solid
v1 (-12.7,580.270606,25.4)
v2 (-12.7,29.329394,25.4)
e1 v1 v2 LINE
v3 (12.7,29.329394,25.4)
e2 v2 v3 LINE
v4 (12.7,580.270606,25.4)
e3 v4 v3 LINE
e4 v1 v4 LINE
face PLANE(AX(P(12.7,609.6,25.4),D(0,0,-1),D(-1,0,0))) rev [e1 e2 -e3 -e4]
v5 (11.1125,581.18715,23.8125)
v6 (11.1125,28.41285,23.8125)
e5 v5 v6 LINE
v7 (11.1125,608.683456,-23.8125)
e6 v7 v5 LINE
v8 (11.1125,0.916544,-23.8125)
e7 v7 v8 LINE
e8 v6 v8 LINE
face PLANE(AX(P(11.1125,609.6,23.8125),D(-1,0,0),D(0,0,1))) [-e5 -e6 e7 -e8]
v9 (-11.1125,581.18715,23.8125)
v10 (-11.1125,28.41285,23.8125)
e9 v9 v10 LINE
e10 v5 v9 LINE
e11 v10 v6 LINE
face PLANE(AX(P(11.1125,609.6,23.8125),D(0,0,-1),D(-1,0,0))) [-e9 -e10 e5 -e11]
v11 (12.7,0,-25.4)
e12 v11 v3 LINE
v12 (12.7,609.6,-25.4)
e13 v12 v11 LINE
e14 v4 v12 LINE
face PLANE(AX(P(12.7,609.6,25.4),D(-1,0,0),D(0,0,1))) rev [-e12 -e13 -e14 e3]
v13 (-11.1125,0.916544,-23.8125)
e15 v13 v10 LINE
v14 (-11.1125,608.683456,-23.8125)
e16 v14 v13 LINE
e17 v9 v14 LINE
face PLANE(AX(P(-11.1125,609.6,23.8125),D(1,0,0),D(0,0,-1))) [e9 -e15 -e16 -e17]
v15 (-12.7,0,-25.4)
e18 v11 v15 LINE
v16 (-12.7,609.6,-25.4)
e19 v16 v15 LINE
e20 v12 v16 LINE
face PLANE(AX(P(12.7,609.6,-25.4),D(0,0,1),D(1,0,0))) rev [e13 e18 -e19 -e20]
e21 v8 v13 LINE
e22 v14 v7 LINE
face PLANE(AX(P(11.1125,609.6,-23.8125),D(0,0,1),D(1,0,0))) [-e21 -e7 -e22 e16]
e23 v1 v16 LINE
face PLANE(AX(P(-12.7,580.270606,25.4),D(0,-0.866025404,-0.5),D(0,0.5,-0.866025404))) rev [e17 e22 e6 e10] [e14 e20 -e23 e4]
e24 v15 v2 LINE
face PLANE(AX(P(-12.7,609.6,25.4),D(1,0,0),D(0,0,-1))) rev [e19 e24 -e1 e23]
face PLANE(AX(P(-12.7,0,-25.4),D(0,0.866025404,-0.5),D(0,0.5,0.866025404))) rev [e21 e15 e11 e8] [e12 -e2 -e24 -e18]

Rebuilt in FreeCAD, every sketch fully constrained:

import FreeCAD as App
import Part
import Sketcher

V = App.Vector
Q = App.Units.Quantity

doc = App.newDocument("Part")
body = doc.addObject("PartDesign::Body", "Body")

# Sketch on XZ plane
sketch1 = body.newObject("Sketcher::SketchObject", "Sketch")
sketch1.AttachmentSupport = (doc.getObject("XZ_Plane"), [""])
sketch1.MapMode = "FlatFace"
sketch1.addGeometry([
    Part.LineSegment(V(-13, -25, 0), V(-13, 25, 0)),  # 0
    Part.LineSegment(V(-13, 25, 0), V(13, 25, 0)),  # 1
    Part.LineSegment(V(13, 25, 0), V(13, -25, 0)),  # 2
    Part.LineSegment(V(13, -25, 0), V(-13, -25, 0)),  # 3
    Part.LineSegment(V(11, 24, 0), V(-11, 24, 0)),  # 4
    Part.LineSegment(V(-11, 24, 0), V(-11, -24, 0)),  # 5
    Part.LineSegment(V(-11, -24, 0), V(11, -24, 0)),  # 6
    Part.LineSegment(V(11, -24, 0), V(11, 24, 0)),  # 7
], False)
sketch1.addConstraint([
    Sketcher.Constraint("Coincident", 0, 2, 1, 1),
    Sketcher.Constraint("Coincident", 1, 2, 2, 1),
    Sketcher.Constraint("Coincident", 2, 2, 3, 1),
    Sketcher.Constraint("Coincident", 3, 2, 0, 1),
    Sketcher.Constraint("Coincident", 4, 2, 5, 1),
    Sketcher.Constraint("Coincident", 5, 2, 6, 1),
    Sketcher.Constraint("Coincident", 6, 2, 7, 1),
    Sketcher.Constraint("Coincident", 7, 2, 4, 1),
    Sketcher.Constraint("Vertical", 0),
    Sketcher.Constraint("Horizontal", 1),
    Sketcher.Constraint("Vertical", 2),
    Sketcher.Constraint("Horizontal", 3),
    Sketcher.Constraint("Horizontal", 4),
    Sketcher.Constraint("Vertical", 5),
    Sketcher.Constraint("Horizontal", 6),
    Sketcher.Constraint("Vertical", 7),
    Sketcher.Constraint("Symmetric", 0, 2, 2, 2, -1, 1),
    Sketcher.Constraint("Symmetric", 4, 2, 6, 2, -1, 1),
    Sketcher.Constraint("DistanceX", 1, 1, 1, 2, Q("1 in")),
    Sketcher.Constraint("DistanceY", 0, 1, 0, 2, Q("2 in")),
    Sketcher.Constraint("DistanceX", 4, 2, 4, 1, Q("0.875 in")),
    Sketcher.Constraint("DistanceY", 5, 2, 5, 1, Q("1.875 in")),
])
pad1 = body.newObject("PartDesign::Pad", "Pad")
pad1.Profile = sketch1
pad1.Length = Q("24 in")
pad1.Reversed = True

# Sketch on YZ plane
sketch2 = body.newObject("Sketcher::SketchObject", "Sketch001")
sketch2.AttachmentSupport = (doc.getObject("YZ_Plane"), [""])
sketch2.MapMode = "FlatFace"
sketch2.AttachmentOffset = App.Placement(V(0, 0, 0.5 * 25.4), App.Rotation())
sketch2.addGeometry([
    Part.LineSegment(V(610, -25, 0), V(610, 25, 0)),
    Part.LineSegment(V(610, 25, 0), V(580, 25, 0)),
    Part.LineSegment(V(580, 25, 0), V(610, -25, 0)),
], False)
sketch2.addConstraint([
    Sketcher.Constraint("Coincident", 0, 2, 1, 1),
    Sketcher.Constraint("Coincident", 1, 2, 2, 1),
    Sketcher.Constraint("Coincident", 2, 2, 0, 1),
    Sketcher.Constraint("Vertical", 0),
    Sketcher.Constraint("Horizontal", 1),
    Sketcher.Constraint("DistanceY", 0, 1, 0, 2, Q("2 in")),
    Sketcher.Constraint("DistanceX", -1, 1, 0, 2, Q("24 in")),
    Sketcher.Constraint("DistanceY", -1, 1, 0, 2, Q("1 in")),
    Sketcher.Constraint("Angle", 2, Q("-60 deg")),
])
pocket1 = body.newObject("PartDesign::Pocket", "Pocket")
pocket1.Profile = sketch2
pocket1.Type = "ThroughAll"

# Sketch on YZ plane
sketch3 = body.newObject("Sketcher::SketchObject", "Sketch002")
sketch3.AttachmentSupport = (doc.getObject("YZ_Plane"), [""])
sketch3.MapMode = "FlatFace"
sketch3.addGeometry([
    Part.LineSegment(V(0, 25, 0), V(0, -25, 0)),
    Part.LineSegment(V(0, -25, 0), V(29, 25, 0)),
    Part.LineSegment(V(29, 25, 0), V(0, 25, 0)),
], False)
sketch3.addConstraint([
    Sketcher.Constraint("Coincident", 0, 2, 1, 1),
    Sketcher.Constraint("Coincident", 1, 2, 2, 1),
    Sketcher.Constraint("Coincident", 2, 2, 0, 1),
    Sketcher.Constraint("Vertical", 0),
    Sketcher.Constraint("Horizontal", 2),
    Sketcher.Constraint("Symmetric", 0, 2, 2, 2, -1, 1),
    Sketcher.Constraint("DistanceY", 0, 2, 0, 1, Q("2 in")),
    Sketcher.Constraint("Angle", 1, Q("60 deg")),
])
pocket2 = body.newObject("PartDesign::Pocket", "Pocket001")
pocket2.Profile = sketch3
pocket2.Type = "ThroughAll"
pocket2.Midplane = True

doc.recompute()
